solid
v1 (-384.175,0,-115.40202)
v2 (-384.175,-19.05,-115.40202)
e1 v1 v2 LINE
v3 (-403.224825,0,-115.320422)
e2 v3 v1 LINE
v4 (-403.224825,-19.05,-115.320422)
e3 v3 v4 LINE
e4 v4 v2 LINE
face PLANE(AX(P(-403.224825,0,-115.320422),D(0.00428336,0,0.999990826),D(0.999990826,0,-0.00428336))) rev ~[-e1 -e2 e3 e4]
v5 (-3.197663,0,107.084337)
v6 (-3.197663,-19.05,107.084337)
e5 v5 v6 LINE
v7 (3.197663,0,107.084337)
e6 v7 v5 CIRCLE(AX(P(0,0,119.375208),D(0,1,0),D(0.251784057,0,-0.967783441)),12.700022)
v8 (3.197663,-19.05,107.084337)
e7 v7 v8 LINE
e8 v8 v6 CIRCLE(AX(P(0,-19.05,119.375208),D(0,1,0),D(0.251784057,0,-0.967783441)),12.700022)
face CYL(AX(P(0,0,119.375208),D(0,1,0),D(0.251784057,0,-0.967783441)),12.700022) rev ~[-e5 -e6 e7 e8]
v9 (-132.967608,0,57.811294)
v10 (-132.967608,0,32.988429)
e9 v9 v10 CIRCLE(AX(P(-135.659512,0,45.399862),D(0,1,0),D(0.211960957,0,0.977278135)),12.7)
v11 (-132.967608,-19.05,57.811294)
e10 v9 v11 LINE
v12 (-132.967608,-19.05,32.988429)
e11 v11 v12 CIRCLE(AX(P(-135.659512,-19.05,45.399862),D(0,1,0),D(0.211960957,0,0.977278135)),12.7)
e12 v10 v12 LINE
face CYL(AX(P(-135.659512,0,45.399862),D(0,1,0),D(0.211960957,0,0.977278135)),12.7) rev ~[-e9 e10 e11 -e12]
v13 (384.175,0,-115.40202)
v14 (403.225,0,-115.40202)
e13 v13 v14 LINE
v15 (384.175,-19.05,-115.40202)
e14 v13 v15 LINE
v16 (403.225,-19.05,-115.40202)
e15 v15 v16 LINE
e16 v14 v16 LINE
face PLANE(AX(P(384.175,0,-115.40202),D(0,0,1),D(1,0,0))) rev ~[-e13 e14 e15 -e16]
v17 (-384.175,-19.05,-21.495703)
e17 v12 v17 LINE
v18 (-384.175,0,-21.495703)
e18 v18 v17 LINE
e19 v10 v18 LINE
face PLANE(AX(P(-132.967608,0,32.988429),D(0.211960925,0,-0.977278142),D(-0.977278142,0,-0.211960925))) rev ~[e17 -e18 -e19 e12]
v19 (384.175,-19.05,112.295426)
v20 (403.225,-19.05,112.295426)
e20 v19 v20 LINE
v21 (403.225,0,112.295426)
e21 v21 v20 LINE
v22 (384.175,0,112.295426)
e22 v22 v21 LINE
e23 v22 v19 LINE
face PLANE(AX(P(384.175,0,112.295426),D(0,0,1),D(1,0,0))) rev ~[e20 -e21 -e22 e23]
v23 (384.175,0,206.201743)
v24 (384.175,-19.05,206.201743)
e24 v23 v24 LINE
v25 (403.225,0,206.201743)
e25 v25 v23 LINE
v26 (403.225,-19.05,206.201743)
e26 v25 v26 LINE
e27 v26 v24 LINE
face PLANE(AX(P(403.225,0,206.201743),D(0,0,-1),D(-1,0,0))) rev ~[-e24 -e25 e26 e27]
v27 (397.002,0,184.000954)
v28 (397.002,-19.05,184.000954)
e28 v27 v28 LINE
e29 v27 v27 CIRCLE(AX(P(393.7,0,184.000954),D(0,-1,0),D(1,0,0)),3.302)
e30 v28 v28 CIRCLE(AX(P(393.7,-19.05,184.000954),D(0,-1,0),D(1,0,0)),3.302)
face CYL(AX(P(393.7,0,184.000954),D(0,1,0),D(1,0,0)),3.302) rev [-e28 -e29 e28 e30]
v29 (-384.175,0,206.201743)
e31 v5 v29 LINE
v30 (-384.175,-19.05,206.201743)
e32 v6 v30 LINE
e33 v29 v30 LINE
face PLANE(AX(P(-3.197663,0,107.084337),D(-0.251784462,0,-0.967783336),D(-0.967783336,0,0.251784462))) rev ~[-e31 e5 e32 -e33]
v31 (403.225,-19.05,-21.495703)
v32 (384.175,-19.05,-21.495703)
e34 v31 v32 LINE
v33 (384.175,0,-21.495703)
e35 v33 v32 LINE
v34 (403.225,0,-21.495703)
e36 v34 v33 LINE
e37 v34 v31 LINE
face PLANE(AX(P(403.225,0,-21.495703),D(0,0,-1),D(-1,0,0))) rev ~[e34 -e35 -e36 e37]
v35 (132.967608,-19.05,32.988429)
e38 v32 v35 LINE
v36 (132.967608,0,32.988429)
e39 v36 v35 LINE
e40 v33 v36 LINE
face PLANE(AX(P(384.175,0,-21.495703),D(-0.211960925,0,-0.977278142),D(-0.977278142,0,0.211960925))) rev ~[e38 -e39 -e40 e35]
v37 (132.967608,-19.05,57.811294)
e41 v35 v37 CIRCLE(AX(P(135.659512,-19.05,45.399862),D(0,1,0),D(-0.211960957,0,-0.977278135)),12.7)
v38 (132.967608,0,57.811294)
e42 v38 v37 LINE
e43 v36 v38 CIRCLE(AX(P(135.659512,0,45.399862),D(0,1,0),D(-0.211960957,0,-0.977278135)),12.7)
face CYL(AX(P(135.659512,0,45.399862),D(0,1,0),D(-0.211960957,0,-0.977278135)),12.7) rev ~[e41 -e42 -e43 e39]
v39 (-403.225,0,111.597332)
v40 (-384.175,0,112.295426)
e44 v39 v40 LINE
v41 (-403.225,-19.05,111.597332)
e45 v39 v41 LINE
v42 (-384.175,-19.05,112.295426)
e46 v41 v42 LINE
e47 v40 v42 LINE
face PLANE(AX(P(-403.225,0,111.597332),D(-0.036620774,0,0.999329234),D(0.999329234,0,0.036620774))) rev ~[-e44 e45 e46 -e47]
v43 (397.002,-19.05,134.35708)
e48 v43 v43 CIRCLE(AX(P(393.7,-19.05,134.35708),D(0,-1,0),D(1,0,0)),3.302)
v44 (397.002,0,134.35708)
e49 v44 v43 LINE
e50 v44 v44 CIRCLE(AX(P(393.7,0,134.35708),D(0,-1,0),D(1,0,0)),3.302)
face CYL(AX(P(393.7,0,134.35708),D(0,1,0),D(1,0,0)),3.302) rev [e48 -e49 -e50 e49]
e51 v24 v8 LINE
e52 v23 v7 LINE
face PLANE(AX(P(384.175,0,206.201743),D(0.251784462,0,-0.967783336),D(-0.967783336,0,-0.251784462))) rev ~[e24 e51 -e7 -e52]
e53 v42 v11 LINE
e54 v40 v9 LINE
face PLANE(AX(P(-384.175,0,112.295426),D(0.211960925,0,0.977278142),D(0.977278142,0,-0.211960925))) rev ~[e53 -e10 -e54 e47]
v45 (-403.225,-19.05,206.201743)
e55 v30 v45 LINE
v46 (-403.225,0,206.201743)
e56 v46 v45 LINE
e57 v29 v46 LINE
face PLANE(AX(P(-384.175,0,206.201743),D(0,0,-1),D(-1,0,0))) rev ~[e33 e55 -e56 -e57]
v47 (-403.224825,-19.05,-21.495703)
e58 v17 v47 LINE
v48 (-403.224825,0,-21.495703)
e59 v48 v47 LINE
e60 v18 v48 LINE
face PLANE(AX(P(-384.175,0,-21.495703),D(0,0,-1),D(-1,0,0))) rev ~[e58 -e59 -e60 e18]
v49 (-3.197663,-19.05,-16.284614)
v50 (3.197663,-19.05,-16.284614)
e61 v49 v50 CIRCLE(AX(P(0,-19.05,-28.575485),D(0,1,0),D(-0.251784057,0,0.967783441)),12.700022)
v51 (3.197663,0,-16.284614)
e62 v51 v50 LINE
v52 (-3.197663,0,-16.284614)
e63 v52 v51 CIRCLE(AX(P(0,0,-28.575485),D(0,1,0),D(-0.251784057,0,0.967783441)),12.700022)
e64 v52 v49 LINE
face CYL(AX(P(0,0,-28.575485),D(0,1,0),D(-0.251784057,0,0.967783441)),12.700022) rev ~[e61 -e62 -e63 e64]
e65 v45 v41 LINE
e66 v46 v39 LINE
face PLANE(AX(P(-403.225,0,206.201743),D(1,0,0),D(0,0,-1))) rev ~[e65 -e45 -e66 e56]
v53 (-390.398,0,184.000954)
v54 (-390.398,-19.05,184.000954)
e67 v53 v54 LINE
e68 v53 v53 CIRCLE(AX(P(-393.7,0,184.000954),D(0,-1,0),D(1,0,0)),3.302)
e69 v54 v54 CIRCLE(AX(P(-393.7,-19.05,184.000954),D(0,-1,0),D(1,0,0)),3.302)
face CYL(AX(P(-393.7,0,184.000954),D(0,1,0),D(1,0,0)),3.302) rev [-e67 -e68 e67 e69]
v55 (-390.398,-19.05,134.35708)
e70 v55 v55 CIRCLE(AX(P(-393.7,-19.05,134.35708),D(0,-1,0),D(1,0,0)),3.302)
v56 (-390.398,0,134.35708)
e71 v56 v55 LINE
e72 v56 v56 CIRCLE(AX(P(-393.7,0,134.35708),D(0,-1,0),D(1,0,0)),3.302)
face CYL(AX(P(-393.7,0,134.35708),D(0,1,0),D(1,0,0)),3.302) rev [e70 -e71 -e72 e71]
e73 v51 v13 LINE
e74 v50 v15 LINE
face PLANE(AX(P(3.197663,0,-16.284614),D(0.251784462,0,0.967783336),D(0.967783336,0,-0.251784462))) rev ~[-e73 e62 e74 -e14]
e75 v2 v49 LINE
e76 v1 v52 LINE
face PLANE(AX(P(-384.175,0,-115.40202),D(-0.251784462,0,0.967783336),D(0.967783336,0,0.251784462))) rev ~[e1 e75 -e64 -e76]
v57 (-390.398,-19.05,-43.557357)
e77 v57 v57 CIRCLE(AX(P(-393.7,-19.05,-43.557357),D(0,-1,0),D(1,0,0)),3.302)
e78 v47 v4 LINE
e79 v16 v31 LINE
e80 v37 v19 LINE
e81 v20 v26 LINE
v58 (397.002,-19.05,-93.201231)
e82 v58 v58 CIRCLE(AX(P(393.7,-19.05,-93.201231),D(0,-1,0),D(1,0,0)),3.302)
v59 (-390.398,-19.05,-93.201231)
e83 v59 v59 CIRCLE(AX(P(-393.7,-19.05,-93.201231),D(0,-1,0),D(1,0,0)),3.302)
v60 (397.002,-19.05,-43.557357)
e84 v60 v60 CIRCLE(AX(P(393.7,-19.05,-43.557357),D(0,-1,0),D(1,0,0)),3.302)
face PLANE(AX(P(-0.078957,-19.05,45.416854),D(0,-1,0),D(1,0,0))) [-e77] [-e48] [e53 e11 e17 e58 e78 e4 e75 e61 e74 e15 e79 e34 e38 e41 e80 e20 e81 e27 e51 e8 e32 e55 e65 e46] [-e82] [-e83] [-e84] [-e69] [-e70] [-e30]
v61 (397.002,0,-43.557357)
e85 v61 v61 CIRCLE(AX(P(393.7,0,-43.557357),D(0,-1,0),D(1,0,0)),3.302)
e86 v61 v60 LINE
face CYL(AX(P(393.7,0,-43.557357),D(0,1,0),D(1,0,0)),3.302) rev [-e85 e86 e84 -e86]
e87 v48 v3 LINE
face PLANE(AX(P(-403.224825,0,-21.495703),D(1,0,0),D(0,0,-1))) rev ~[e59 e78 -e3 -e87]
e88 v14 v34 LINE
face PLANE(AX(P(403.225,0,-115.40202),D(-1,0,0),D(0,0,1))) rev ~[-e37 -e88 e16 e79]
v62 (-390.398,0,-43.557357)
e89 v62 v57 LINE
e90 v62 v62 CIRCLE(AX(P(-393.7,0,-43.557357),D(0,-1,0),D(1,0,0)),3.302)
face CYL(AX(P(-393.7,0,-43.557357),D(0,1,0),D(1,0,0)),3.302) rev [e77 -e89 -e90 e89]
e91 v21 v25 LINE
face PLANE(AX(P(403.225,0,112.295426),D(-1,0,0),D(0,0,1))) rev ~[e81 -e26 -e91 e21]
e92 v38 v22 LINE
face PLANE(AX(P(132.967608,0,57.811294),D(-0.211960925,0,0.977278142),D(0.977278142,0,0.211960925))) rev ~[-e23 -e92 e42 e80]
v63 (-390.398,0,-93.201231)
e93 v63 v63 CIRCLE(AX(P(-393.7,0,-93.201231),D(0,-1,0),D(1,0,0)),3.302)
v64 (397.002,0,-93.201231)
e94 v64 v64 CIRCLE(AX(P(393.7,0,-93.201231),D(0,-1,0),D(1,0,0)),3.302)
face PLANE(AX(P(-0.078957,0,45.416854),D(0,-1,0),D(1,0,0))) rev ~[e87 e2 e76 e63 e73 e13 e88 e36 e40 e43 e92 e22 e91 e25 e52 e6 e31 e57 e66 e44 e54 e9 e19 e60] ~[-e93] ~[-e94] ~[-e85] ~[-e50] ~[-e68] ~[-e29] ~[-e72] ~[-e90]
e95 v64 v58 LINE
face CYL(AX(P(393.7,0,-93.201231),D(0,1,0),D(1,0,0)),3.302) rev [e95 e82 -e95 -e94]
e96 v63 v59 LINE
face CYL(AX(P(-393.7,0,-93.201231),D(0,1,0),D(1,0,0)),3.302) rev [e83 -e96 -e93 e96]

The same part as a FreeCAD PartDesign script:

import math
import FreeCAD as App
import Part
import Sketcher
from FreeCAD import Vector
Q = App.Units.Quantity

doc = App.newDocument("Part")
body = doc.addObject("PartDesign::Body", "Body")

sketch1 = body.newObject("Sketcher::SketchObject", "Sketch")
sketch1.AttachmentSupport = (doc.getObject("XZ_Plane"), [""])
sketch1.MapMode = "FlatFace"
sketch1.addGeometry(Part.LineSegment(Vector(-403.225, 111.597332, 0), Vector(-384.175, 112.295426, 0)), False)
sketch1.addGeometry(Part.LineSegment(Vector(-384.175, 112.295426, 0), Vector(-132.967608, 57.811294, 0)), False)
sketch1.addGeometry(Part.ArcOfCircle(Part.Circle(Vector(-135.659512, 45.399862, 0), Vector(0, 0, 1), 12.7), math.radians(-77.762706), math.radians(77.762706)), False)
sketch1.addGeometry(Part.LineSegment(Vector(-132.967608, 32.988429, 0), Vector(-384.175, -21.495703, 0)), False)
sketch1.addGeometry(Part.LineSegment(Vector(-384.175, -21.495703, 0), Vector(-403.224825, -21.495703, 0)), False)
sketch1.addGeometry(Part.LineSegment(Vector(-403.224825, -21.495703, 0), Vector(-403.224825, -115.320422, 0)), False)
sketch1.addGeometry(Part.LineSegment(Vector(-403.224825, -115.320422, 0), Vector(-384.175, -115.40202, 0)), False)
sketch1.addGeometry(Part.LineSegment(Vector(-384.175, -115.40202, 0), Vector(-3.197663, -16.284614, 0)), False)
sketch1.addGeometry(Part.ArcOfCircle(Part.Circle(Vector(0, -28.575485, 0), Vector(0, 0, 1), 12.700022), math.radians(75.416891), math.radians(104.583109)), False)
sketch1.addGeometry(Part.LineSegment(Vector(3.197663, -16.284614, 0), Vector(384.175, -115.40202, 0)), False)
sketch1.addGeometry(Part.LineSegment(Vector(384.175, -115.40202, 0), Vector(403.225, -115.40202, 0)), False)
sketch1.addGeometry(Part.LineSegment(Vector(403.225, -115.40202, 0), Vector(403.225, -21.495703, 0)), False)
sketch1.addGeometry(Part.LineSegment(Vector(403.225, -21.495703, 0), Vector(384.175, -21.495703, 0)), False)
sketch1.addGeometry(Part.LineSegment(Vector(384.175, -21.495703, 0), Vector(132.967608, 32.988429, 0)), False)
sketch1.addGeometry(Part.ArcOfCircle(Part.Circle(Vector(135.659512, 45.399862, 0), Vector(0, 0, 1), 12.7), math.radians(102.237294), math.radians(257.762706)), False)
sketch1.addGeometry(Part.LineSegment(Vector(132.967608, 57.811294, 0), Vector(384.175, 112.295426, 0)), False)
sketch1.addGeometry(Part.LineSegment(Vector(384.175, 112.295426, 0), Vector(403.225, 112.295426, 0)), False)
sketch1.addGeometry(Part.LineSegment(Vector(403.225, 112.295426, 0), Vector(403.225, 206.201743, 0)), False)
sketch1.addGeometry(Part.LineSegment(Vector(403.225, 206.201743, 0), Vector(384.175, 206.201743, 0)), False)
sketch1.addGeometry(Part.LineSegment(Vector(384.175, 206.201743, 0), Vector(3.197663, 107.084337, 0)), False)
sketch1.addGeometry(Part.ArcOfCircle(Part.Circle(Vector(0, 119.375208, 0), Vector(0, 0, 1), 12.700022), math.radians(-104.583109), math.radians(-75.416891)), False)
sketch1.addGeometry(Part.LineSegment(Vector(-3.197663, 107.084337, 0), Vector(-384.175, 206.201743, 0)), False)
sketch1.addGeometry(Part.LineSegment(Vector(-384.175, 206.201743, 0), Vector(-403.225, 206.201743, 0)), False)
sketch1.addGeometry(Part.LineSegment(Vector(-403.225, 206.201743, 0), Vector(-403.225, 111.597332, 0)), False)
sketch1.addConstraint(Sketcher.Constraint("Coincident", 0, 2, 1, 1))
sketch1.addConstraint(Sketcher.Constraint("Tangent", 1, 2, 2, 2))
sketch1.addConstraint(Sketcher.Constraint("Tangent", 2, 1, 3, 1))
sketch1.addConstraint(Sketcher.Constraint("Coincident", 3, 2, 4, 1))
sketch1.addConstraint(Sketcher.Constraint("Coincident", 4, 2, 5, 1))
sketch1.addConstraint(Sketcher.Constraint("Coincident", 5, 2, 6, 1))
sketch1.addConstraint(Sketcher.Constraint("Coincident", 6, 2, 7, 1))
sketch1.addConstraint(Sketcher.Constraint("Tangent", 7, 2, 8, 2))
sketch1.addConstraint(Sketcher.Constraint("Tangent", 8, 1, 9, 1))
sketch1.addConstraint(Sketcher.Constraint("Coincident", 9, 2, 10, 1))
sketch1.addConstraint(Sketcher.Constraint("Coincident", 10, 2, 11, 1))
sketch1.addConstraint(Sketcher.Constraint("Coincident", 11, 2, 12, 1))
sketch1.addConstraint(Sketcher.Constraint("Coincident", 12, 2, 13, 1))
sketch1.addConstraint(Sketcher.Constraint("Tangent", 13, 2, 14, 2))
sketch1.addConstraint(Sketcher.Constraint("Tangent", 14, 1, 15, 1))
sketch1.addConstraint(Sketcher.Constraint("Coincident", 15, 2, 16, 1))
sketch1.addConstraint(Sketcher.Constraint("Coincident", 16, 2, 17, 1))
sketch1.addConstraint(Sketcher.Constraint("Coincident", 17, 2, 18, 1))
sketch1.addConstraint(Sketcher.Constraint("Coincident", 18, 2, 19, 1))
sketch1.addConstraint(Sketcher.Constraint("Tangent", 19, 2, 20, 2))
sketch1.addConstraint(Sketcher.Constraint("Tangent", 20, 1, 21, 1))
sketch1.addConstraint(Sketcher.Constraint("Coincident", 21, 2, 22, 1))
sketch1.addConstraint(Sketcher.Constraint("Coincident", 22, 2, 23, 1))
sketch1.addConstraint(Sketcher.Constraint("Coincident", 23, 2, 0, 1))
sketch1.addConstraint(Sketcher.Constraint("Horizontal", 4))
sketch1.addConstraint(Sketcher.Constraint("Vertical", 5))
sketch1.addConstraint(Sketcher.Constraint("Horizontal", 10))
sketch1.addConstraint(Sketcher.Constraint("Vertical", 11))
sketch1.addConstraint(Sketcher.Constraint("Horizontal", 12))
sketch1.addConstraint(Sketcher.Constraint("Horizontal", 16))
sketch1.addConstraint(Sketcher.Constraint("Vertical", 17))
sketch1.addConstraint(Sketcher.Constraint("Horizontal", 18))
sketch1.addConstraint(Sketcher.Constraint("Horizontal", 22))
sketch1.addConstraint(Sketcher.Constraint("Vertical", 23))
sketch1.addConstraint(Sketcher.Constraint("Equal", 2, 14))
sketch1.addConstraint(Sketcher.Constraint("Equal", 8, 20))
sketch1.addConstraint(Sketcher.Constraint("Symmetric", 2, 3, 14, 3, -2))
sketch1.addConstraint(Sketcher.Constraint("Symmetric", 6, 2, 9, 2, -2))
sketch1.addConstraint(Sketcher.Constraint("Symmetric", 3, 2, 12, 2, -2))
sketch1.addConstraint(Sketcher.Constraint("Symmetric", 0, 2, 15, 2, -2))
sketch1.addConstraint(Sketcher.Constraint("Symmetric", 18, 2, 21, 2, -2))
sketch1.addConstraint(Sketcher.Constraint("PointOnObject", 8, 3, -2))
sketch1.addConstraint(Sketcher.Constraint("PointOnObject", 20, 3, -2))
sketch1.addConstraint(Sketcher.Constraint("Parallel", 1, 13))
sketch1.addConstraint(Sketcher.Constraint("Parallel", 7, 19))
sketch1.addConstraint(Sketcher.Constraint("Vertical", 0, 2, 3, 2))
sketch1.addConstraint(Sketcher.Constraint("Vertical", 3, 2, 6, 2))
sketch1.addConstraint(Sketcher.Constraint("Vertical", 11, 2, 16, 2))
sketch1.addConstraint(Sketcher.Constraint("Vertical", 15, 2, 18, 2))
sketch1.addConstraint(Sketcher.Constraint("Equal", 18, 22))
sketch1.addConstraint(Sketcher.Constraint("Equal", 11, 17))
sketch1.addConstraint(Sketcher.Constraint("Radius", 2, Q("0.5 in")))
sketch1.addConstraint(Sketcher.Constraint("DistanceX", 10, 1, 10, 2, Q("0.75 in")))
sketch1.addConstraint(Sketcher.Constraint("Distance", 1, Q("10.12 in")))
sketch1.addConstraint(Sketcher.Constraint("Distance", 6, Q("0.75 in")))
sketch1.addConstraint(Sketcher.Constraint("DistanceX", 0, 2, -1, 1, Q("15.125 in")))
sketch1.addConstraint(Sketcher.Constraint("Radius", 8, Q("12.700022 mm")))
sketch1.addConstraint(Sketcher.Constraint("DistanceY", 5, 2, 5, 1, Q("93.824719 mm")))
sketch1.addConstraint(Sketcher.Constraint("DistanceY", 23, 2, 23, 1, Q("94.604411 mm")))
sketch1.addConstraint(Sketcher.Constraint("Distance", 7, Q("393.659741 mm")))
sketch1.addConstraint(Sketcher.Constraint("DistanceY", 11, 1, 11, 2, Q("93.906317 mm")))
sketch1.addConstraint(Sketcher.Constraint("DistanceY", -1, 1, 2, 3, Q("45.399862 mm")))
sketch1.addConstraint(Sketcher.Constraint("DistanceX", 1, 2, -1, 1, Q("132.967608 mm")))
pad1 = body.newObject("PartDesign::Pad", "Pad")
pad1.Profile = sketch1
pad1.Length = Q("0.75 in")

sketch2 = body.newObject("Sketcher::SketchObject", "Sketch001")
sketch2.AttachmentSupport = (doc.getObject("XZ_Plane"), [""])
sketch2.MapMode = "FlatFace"
sketch2.addGeometry(Part.Circle(Vector(393.7, 184, 0), Vector(0, 0, 1), 3.3), False)
sketch2.addGeometry(Part.Circle(Vector(393.7, 134.4, 0), Vector(0, 0, 1), 3.3), False)
sketch2.addGeometry(Part.Circle(Vector(-393.7, 184, 0), Vector(0, 0, 1), 3.3), False)
sketch2.addGeometry(Part.Circle(Vector(-393.7, 134.4, 0), Vector(0, 0, 1), 3.3), False)
sketch2.addGeometry(Part.Circle(Vector(393.7, -43.6, 0), Vector(0, 0, 1), 3.3), False)
sketch2.addGeometry(Part.Circle(Vector(393.7, -93.2, 0), Vector(0, 0, 1), 3.3), False)
sketch2.addGeometry(Part.Circle(Vector(-393.7, -93.2, 0), Vector(0, 0, 1), 3.3), False)
sketch2.addGeometry(Part.Circle(Vector(-393.7, -43.6, 0), Vector(0, 0, 1), 3.3), False)
sketch2.addConstraint(Sketcher.Constraint("Equal", 0, 1))
sketch2.addConstraint(Sketcher.Constraint("Equal", 1, 2))
sketch2.addConstraint(Sketcher.Constraint("Equal", 2, 3))
sketch2.addConstraint(Sketcher.Constraint("Equal", 3, 4))
sketch2.addConstraint(Sketcher.Constraint("Equal", 4, 5))
sketch2.addConstraint(Sketcher.Constraint("Equal", 5, 6))
sketch2.addConstraint(Sketcher.Constraint("Equal", 6, 7))
sketch2.addConstraint(Sketcher.Constraint("Symmetric", 0, 3, 2, 3, -2))
sketch2.addConstraint(Sketcher.Constraint("Symmetric", 1, 3, 3, 3, -2))
sketch2.addConstraint(Sketcher.Constraint("Symmetric", 5, 3, 6, 3, -2))
sketch2.addConstraint(Sketcher.Constraint("Symmetric", 4, 3, 7, 3, -2))
sketch2.addConstraint(Sketcher.Constraint("Vertical", 0, 3, 1, 3))
sketch2.addConstraint(Sketcher.Constraint("Vertical", 1, 3, 4, 3))
sketch2.addConstraint(Sketcher.Constraint("Vertical", 4, 3, 5, 3))
sketch2.addConstraint(Sketcher.Constraint("Diameter", 0, Q("0.26 in")))
sketch2.addConstraint(Sketcher.Constraint("DistanceX", 2, 3, 0, 3, Q("31 in")))
sketch2.addConstraint(Sketcher.Constraint("DistanceY", -1, 1, 1, 3, Q("134.35708 mm")))
sketch2.addConstraint(Sketcher.Constraint("DistanceY", 5, 3, -1, 1, Q("93.201231 mm")))
sketch2.addConstraint(Sketcher.Constraint("DistanceY", 4, 3, 0, 3, Q("227.558311 mm")))
sketch2.addConstraint(Sketcher.Constraint("DistanceY", -1, 1, 0, 3, Q("184.000954 mm")))
pocket1 = body.newObject("PartDesign::Pocket", "Pocket")
pocket1.Profile = sketch2
pocket1.Type = "ThroughAll"
pocket1.Reversed = True

doc.recompute()
